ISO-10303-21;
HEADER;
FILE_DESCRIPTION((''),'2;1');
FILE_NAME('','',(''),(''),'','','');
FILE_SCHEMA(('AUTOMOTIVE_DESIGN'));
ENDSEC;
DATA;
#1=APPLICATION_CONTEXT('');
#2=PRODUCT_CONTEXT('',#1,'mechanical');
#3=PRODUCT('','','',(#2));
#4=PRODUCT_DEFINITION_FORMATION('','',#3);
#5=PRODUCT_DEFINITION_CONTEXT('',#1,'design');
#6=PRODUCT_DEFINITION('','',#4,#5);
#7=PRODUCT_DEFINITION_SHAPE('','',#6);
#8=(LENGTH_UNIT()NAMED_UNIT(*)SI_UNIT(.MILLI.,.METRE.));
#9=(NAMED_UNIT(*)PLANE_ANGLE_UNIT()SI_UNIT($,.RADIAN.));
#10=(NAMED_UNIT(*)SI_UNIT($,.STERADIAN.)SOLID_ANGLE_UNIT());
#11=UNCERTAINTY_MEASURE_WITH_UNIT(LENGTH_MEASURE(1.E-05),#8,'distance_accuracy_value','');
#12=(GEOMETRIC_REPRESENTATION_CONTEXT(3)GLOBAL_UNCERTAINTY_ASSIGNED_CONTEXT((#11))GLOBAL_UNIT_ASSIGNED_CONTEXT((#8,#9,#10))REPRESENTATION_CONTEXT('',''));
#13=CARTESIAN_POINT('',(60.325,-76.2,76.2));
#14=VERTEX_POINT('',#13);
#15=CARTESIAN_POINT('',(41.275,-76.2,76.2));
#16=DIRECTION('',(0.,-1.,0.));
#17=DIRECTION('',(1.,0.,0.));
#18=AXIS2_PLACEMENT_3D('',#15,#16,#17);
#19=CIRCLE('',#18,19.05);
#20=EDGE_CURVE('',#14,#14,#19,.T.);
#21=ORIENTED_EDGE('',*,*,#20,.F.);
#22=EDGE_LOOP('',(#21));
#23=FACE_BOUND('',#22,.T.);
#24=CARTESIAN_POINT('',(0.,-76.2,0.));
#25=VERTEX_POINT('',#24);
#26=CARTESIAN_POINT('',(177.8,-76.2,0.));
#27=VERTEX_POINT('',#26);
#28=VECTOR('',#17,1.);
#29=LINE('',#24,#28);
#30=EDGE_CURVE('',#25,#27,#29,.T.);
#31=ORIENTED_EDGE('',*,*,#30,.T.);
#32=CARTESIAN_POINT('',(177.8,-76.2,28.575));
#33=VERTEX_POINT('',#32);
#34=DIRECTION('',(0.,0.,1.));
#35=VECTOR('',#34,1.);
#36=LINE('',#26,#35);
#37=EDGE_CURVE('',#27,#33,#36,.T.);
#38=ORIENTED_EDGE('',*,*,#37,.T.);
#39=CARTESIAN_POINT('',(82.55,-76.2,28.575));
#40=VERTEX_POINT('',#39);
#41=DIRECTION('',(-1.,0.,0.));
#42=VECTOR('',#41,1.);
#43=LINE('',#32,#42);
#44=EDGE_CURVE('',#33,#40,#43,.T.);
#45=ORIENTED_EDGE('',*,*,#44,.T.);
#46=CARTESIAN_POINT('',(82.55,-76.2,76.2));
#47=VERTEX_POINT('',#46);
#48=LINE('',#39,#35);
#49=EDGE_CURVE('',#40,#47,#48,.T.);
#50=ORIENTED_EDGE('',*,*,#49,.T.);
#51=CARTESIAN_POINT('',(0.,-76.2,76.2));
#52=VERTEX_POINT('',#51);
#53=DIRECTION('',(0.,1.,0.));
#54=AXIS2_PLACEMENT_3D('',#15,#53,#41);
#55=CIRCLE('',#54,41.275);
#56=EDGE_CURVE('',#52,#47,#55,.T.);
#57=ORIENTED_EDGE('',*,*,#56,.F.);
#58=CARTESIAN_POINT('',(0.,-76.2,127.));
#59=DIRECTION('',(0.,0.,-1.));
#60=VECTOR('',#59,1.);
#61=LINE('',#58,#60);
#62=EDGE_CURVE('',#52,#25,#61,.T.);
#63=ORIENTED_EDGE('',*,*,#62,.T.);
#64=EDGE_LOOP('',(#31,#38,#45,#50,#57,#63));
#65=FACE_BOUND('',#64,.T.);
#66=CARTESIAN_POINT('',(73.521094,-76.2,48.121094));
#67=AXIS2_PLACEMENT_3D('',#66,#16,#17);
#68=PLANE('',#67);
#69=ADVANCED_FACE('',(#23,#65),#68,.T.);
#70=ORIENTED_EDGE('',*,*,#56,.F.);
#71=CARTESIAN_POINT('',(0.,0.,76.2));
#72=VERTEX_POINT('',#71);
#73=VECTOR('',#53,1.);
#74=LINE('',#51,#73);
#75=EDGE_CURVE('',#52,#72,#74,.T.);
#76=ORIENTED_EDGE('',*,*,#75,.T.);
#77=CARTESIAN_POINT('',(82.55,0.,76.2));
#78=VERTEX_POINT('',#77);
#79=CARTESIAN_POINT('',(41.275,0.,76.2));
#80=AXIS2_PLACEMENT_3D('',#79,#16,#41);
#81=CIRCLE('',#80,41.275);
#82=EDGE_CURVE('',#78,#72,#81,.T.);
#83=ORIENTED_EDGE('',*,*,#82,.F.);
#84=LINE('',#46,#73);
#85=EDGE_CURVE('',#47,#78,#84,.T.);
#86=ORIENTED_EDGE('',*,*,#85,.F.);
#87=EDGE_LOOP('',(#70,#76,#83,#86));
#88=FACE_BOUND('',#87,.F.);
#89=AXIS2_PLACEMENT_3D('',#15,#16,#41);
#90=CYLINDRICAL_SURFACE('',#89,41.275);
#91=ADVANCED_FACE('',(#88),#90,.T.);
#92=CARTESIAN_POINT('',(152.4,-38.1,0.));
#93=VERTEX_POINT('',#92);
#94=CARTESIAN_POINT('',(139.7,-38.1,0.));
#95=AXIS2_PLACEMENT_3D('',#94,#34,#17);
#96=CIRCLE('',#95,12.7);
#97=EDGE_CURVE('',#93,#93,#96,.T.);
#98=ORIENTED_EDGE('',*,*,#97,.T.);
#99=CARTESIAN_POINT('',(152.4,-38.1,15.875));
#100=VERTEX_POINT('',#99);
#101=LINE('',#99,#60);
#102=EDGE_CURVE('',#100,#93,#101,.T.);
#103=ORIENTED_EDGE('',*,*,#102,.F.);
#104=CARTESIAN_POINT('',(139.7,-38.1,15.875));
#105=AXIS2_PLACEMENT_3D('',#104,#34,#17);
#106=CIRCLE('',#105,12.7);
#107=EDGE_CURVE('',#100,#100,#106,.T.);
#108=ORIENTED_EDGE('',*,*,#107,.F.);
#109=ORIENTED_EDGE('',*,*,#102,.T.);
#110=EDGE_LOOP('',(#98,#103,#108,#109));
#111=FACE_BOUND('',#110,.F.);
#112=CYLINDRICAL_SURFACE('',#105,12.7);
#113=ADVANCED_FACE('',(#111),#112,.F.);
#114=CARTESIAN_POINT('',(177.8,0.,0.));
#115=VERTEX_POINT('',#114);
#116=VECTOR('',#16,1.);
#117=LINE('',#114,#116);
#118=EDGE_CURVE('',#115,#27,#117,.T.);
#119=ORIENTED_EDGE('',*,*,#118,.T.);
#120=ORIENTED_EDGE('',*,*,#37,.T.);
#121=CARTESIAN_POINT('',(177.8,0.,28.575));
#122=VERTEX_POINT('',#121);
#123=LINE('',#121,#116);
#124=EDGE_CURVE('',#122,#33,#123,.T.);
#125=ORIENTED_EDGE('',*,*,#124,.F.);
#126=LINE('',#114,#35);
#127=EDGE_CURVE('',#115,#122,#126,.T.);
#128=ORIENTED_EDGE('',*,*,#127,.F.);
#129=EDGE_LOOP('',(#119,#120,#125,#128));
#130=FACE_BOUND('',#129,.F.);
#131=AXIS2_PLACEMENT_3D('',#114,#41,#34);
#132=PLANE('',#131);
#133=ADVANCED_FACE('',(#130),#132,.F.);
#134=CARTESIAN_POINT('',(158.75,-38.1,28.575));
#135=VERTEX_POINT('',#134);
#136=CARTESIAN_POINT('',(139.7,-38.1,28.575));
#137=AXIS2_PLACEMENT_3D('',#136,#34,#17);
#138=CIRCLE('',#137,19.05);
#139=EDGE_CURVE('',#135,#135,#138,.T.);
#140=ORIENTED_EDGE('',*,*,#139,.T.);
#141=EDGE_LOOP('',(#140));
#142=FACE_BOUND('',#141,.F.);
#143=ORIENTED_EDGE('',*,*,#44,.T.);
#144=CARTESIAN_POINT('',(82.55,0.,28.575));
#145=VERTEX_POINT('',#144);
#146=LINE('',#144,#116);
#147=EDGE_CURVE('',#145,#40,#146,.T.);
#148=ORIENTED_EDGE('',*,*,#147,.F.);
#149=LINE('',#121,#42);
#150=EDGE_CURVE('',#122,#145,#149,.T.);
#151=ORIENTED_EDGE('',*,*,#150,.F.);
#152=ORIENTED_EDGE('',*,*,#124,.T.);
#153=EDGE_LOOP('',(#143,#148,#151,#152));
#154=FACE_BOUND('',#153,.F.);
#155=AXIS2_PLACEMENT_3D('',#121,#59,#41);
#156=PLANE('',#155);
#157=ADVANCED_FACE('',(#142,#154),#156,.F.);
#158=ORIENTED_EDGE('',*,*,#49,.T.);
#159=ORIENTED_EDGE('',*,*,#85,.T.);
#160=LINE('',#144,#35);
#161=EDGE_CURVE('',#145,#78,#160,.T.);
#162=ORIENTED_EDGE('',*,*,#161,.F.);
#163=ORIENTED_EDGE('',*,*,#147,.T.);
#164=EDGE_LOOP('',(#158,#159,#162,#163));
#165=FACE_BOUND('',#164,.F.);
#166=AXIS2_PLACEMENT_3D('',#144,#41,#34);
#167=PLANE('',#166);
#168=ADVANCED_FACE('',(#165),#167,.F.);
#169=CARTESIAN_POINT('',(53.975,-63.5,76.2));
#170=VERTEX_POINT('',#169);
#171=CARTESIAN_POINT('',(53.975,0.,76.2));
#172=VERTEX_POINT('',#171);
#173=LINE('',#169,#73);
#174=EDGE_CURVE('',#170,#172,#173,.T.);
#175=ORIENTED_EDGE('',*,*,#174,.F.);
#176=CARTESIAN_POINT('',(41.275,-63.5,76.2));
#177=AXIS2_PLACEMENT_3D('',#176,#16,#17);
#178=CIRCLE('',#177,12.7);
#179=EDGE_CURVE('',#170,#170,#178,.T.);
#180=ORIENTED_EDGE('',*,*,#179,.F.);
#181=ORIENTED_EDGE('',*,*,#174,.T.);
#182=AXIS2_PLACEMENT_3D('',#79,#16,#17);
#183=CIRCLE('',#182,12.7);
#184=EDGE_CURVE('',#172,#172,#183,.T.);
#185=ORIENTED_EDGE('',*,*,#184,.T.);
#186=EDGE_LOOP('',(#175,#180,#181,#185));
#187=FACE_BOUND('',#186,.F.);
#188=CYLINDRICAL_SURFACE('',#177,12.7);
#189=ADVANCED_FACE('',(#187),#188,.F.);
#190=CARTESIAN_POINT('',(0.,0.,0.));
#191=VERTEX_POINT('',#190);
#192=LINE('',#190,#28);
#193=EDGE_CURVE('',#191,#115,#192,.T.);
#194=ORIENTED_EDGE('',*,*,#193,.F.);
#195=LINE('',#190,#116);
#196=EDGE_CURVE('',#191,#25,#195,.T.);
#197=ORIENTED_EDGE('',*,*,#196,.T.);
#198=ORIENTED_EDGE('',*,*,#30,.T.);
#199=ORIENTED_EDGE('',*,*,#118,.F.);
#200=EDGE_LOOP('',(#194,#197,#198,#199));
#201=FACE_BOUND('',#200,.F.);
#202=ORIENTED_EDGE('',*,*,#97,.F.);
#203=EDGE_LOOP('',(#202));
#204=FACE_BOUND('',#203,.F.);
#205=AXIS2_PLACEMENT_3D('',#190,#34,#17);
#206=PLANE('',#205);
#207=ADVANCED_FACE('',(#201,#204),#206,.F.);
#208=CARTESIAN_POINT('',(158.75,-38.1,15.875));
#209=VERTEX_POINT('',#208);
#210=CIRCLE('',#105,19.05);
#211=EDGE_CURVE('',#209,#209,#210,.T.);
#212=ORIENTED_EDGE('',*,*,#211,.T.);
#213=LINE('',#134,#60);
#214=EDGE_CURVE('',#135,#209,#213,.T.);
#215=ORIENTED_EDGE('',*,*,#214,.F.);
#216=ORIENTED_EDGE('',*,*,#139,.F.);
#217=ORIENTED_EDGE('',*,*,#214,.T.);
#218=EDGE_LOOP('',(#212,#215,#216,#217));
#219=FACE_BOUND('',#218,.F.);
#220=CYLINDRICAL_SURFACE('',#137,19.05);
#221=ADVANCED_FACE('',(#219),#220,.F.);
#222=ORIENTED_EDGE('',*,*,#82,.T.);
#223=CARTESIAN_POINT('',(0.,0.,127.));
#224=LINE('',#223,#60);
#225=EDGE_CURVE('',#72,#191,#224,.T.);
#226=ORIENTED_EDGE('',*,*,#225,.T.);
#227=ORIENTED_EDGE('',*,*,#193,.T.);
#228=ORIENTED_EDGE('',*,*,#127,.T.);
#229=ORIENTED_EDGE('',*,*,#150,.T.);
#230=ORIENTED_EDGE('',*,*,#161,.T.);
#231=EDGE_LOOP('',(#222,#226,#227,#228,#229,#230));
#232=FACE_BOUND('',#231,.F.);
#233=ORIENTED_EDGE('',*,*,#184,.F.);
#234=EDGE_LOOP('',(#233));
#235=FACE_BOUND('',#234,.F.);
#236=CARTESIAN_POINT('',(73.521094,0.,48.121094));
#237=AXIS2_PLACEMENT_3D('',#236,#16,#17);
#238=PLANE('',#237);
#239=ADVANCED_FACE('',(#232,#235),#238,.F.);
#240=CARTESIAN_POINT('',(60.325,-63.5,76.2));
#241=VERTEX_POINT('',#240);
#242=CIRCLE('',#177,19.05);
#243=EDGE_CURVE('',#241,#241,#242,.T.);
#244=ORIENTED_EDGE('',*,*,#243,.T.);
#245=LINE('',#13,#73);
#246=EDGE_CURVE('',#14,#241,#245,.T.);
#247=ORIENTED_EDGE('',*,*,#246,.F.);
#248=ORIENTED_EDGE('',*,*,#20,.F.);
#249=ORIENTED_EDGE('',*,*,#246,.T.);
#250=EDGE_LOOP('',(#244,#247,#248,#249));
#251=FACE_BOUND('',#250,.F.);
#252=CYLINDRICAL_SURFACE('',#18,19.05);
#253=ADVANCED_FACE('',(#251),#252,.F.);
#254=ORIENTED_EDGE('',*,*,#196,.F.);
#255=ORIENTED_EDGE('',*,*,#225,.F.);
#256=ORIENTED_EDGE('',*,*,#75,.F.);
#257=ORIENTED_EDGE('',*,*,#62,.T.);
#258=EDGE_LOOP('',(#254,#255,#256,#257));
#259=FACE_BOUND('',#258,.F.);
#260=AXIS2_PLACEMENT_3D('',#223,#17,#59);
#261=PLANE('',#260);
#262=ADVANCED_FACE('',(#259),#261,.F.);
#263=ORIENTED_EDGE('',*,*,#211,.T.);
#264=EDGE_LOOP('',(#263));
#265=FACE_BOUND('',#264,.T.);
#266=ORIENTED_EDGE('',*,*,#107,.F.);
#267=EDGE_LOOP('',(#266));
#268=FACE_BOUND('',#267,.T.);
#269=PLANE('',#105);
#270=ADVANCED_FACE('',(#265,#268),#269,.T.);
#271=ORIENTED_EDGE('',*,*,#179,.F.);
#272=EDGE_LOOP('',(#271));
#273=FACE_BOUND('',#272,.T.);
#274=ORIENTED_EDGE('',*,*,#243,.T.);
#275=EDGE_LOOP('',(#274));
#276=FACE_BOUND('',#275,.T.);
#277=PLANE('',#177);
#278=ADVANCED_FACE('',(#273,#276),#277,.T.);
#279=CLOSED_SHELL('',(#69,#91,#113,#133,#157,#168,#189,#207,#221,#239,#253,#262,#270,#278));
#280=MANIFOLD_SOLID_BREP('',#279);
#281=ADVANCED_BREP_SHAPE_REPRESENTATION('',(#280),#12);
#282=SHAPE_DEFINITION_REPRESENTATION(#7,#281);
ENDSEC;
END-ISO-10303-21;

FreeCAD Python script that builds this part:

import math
import FreeCAD as App
import Part
import Sketcher
from FreeCAD import Vector
Q = App.Units.Quantity

doc = App.newDocument("Part")
body = doc.addObject("PartDesign::Body", "Body")

# Sketch on XZ plane
sketch1 = body.newObject("Sketcher::SketchObject", "Sketch")
sketch1.AttachmentSupport = (doc.getObject("XZ_Plane"), [""])
sketch1.MapMode = "FlatFace"
sketch1.addGeometry([
    Part.LineSegment(Vector(0, 127, 0), Vector(0, 0, 0)),  # 0
    Part.LineSegment(Vector(0, 0, 0), Vector(177.8, 0, 0)),  # 1
    Part.LineSegment(Vector(177.8, 0, 0), Vector(177.8, 28.575, 0)),  # 2
    Part.LineSegment(Vector(177.8, 28.575, 0), Vector(82.55, 28.575, 0)),  # 3
    Part.LineSegment(Vector(82.55, 28.575, 0), Vector(82.55, 127, 0)),  # 4
    Part.LineSegment(Vector(82.55, 127, 0), Vector(0, 127, 0)),  # 5
], False)
sketch1.addConstraint([
    Sketcher.Constraint("Coincident", 0, 2, 1, 1),
    Sketcher.Constraint("Coincident", 1, 2, 2, 1),
    Sketcher.Constraint("Coincident", 2, 2, 3, 1),
    Sketcher.Constraint("Coincident", 3, 2, 4, 1),
    Sketcher.Constraint("Coincident", 4, 2, 5, 1),
    Sketcher.Constraint("Coincident", 5, 2, 0, 1),
    Sketcher.Constraint("Vertical", 0),
    Sketcher.Constraint("Horizontal", 1),
    Sketcher.Constraint("Vertical", 2),
    Sketcher.Constraint("Horizontal", 3),
    Sketcher.Constraint("Vertical", 4),
    Sketcher.Constraint("Horizontal", 5),
    Sketcher.Constraint("Coincident", 0, 2, -1, 1),
    Sketcher.Constraint("DistanceX", 1, 1, 1, 2, Q("7 in")),
    Sketcher.Constraint("DistanceY", 0, 2, 0, 1, Q("5 in")),
    Sketcher.Constraint("DistanceX", 3, 2, 3, 1, Q("3.75 in")),
    Sketcher.Constraint("DistanceY", 2, 1, 2, 2, Q("1.125 in")),
])
pad1 = body.newObject("PartDesign::Pad", "Pad")
pad1.Profile = sketch1
pad1.Length = Q("3 in")

# Sketch on XZ plane
sketch2 = body.newObject("Sketcher::SketchObject", "Sketch001")
sketch2.AttachmentSupport = (doc.getObject("XZ_Plane"), [""])
sketch2.MapMode = "FlatFace"
sketch2.AttachmentOffset = App.Placement(Vector(0, 0, 3 * 25.4), App.Rotation())
sketch2.addGeometry([
    Part.ArcOfCircle(Part.Circle(Vector(41.275, 76.2, 0), Vector(0, 0, 1), 41.275), math.radians(0), math.radians(180)),
    Part.LineSegment(Vector(82.55, 76.2, 0), Vector(82.55, 127, 0)),
    Part.LineSegment(Vector(82.55, 127, 0), Vector(0, 127, 0)),
    Part.LineSegment(Vector(0, 127, 0), Vector(0, 76.2, 0)),
], False)
sketch2.addConstraint([
    Sketcher.Constraint("Tangent", 0, 1, 1, 1),
    Sketcher.Constraint("Coincident", 1, 2, 2, 1),
    Sketcher.Constraint("Coincident", 2, 2, 3, 1),
    Sketcher.Constraint("Tangent", 3, 2, 0, 2),
    Sketcher.Constraint("Vertical", 1),
    Sketcher.Constraint("Horizontal", 2),
    Sketcher.Constraint("Vertical", 3),
    Sketcher.Constraint("PointOnObject", 2, 2, -2),
    Sketcher.Constraint("DistanceY", 1, 1, 1, 2, Q("2 in")),
    Sketcher.Constraint("DistanceY", -1, 1, 0, 3, Q("3 in")),
    Sketcher.Constraint("Radius", 0, Q("1.625 in")),
])
pocket1 = body.newObject("PartDesign::Pocket", "Pocket")
pocket1.Profile = sketch2
pocket1.Type = "ThroughAll"

# Sketch on XZ plane
sketch3 = body.newObject("Sketcher::SketchObject", "Sketch002")
sketch3.AttachmentSupport = (doc.getObject("XZ_Plane"), [""])
sketch3.MapMode = "FlatFace"
sketch3.AttachmentOffset = App.Placement(Vector(0, 0, 3 * 25.4), App.Rotation())
sketch3.addGeometry(Part.Circle(Vector(41.275, 76.2, 0), Vector(0, 0, 1), 19.05), False)
sketch3.addConstraint([
    Sketcher.Constraint("Diameter", 0, Q("1.5 in")),
    Sketcher.Constraint("DistanceY", -1, 1, 0, 3, Q("3 in")),
    Sketcher.Constraint("DistanceX", -1, 1, 0, 3, Q("1.625 in")),
])
pocket2 = body.newObject("PartDesign::Pocket", "Pocket001")
pocket2.Profile = sketch3
pocket2.Length = Q("0.5 in")

# Sketch on XZ plane
sketch4 = body.newObject("Sketcher::SketchObject", "Sketch003")
sketch4.AttachmentSupport = (doc.getObject("XZ_Plane"), [""])
sketch4.MapMode = "FlatFace"
sketch4.AttachmentOffset = App.Placement(Vector(0, 0, 2.5 * 25.4), App.Rotation())
sketch4.addGeometry(Part.Circle(Vector(41.275, 76.2, 0), Vector(0, 0, 1), 12.7), False)
sketch4.addConstraint([
    Sketcher.Constraint("Diameter", 0, Q("1 in")),
    Sketcher.Constraint("DistanceY", -1, 1, 0, 3, Q("3 in")),
    Sketcher.Constraint("DistanceX", -1, 1, 0, 3, Q("1.625 in")),
])
pocket3 = body.newObject("PartDesign::Pocket", "Pocket002")
pocket3.Profile = sketch4
pocket3.Type = "ThroughAll"

# Sketch on XY plane
sketch5 = body.newObject("Sketcher::SketchObject", "Sketch004")
sketch5.AttachmentSupport = (doc.getObject("XY_Plane"), [""])
sketch5.MapMode = "FlatFace"
sketch5.AttachmentOffset = App.Placement(Vector(0, 0, 1.125 * 25.4), App.Rotation())
sketch5.addGeometry(Part.Circle(Vector(139.7, -38.1, 0), Vector(0, 0, 1), 19.05), False)
sketch5.addConstraint([
    Sketcher.Constraint("Diameter", 0, Q("1.5 in")),
    Sketcher.Constraint("DistanceX", -1, 1, 0, 3, Q("5.5 in")),
    Sketcher.Constraint("DistanceY", 0, 3, -1, 1, Q("1.5 in")),
])
pocket4 = body.newObject("PartDesign::Pocket", "Pocket003")
pocket4.Profile = sketch5
pocket4.Length = Q("0.5 in")

# Sketch on XY plane
sketch6 = body.newObject("Sketcher::SketchObject", "Sketch005")
sketch6.AttachmentSupport = (doc.getObject("XY_Plane"), [""])
sketch6.MapMode = "FlatFace"
sketch6.AttachmentOffset = App.Placement(Vector(0, 0, 0.625 * 25.4), App.Rotation())
sketch6.addGeometry(Part.Circle(Vector(139.7, -38.1, 0), Vector(0, 0, 1), 12.7), False)
sketch6.addConstraint([
    Sketcher.Constraint("Diameter", 0, Q("1 in")),
    Sketcher.Constraint("DistanceX", -1, 1, 0, 3, Q("5.5 in")),
    Sketcher.Constraint("DistanceY", 0, 3, -1, 1, Q("1.5 in")),
])
pocket5 = body.newObject("PartDesign::Pocket", "Pocket004")
pocket5.Profile = sketch6
pocket5.Type = "ThroughAll"

doc.recompute()
